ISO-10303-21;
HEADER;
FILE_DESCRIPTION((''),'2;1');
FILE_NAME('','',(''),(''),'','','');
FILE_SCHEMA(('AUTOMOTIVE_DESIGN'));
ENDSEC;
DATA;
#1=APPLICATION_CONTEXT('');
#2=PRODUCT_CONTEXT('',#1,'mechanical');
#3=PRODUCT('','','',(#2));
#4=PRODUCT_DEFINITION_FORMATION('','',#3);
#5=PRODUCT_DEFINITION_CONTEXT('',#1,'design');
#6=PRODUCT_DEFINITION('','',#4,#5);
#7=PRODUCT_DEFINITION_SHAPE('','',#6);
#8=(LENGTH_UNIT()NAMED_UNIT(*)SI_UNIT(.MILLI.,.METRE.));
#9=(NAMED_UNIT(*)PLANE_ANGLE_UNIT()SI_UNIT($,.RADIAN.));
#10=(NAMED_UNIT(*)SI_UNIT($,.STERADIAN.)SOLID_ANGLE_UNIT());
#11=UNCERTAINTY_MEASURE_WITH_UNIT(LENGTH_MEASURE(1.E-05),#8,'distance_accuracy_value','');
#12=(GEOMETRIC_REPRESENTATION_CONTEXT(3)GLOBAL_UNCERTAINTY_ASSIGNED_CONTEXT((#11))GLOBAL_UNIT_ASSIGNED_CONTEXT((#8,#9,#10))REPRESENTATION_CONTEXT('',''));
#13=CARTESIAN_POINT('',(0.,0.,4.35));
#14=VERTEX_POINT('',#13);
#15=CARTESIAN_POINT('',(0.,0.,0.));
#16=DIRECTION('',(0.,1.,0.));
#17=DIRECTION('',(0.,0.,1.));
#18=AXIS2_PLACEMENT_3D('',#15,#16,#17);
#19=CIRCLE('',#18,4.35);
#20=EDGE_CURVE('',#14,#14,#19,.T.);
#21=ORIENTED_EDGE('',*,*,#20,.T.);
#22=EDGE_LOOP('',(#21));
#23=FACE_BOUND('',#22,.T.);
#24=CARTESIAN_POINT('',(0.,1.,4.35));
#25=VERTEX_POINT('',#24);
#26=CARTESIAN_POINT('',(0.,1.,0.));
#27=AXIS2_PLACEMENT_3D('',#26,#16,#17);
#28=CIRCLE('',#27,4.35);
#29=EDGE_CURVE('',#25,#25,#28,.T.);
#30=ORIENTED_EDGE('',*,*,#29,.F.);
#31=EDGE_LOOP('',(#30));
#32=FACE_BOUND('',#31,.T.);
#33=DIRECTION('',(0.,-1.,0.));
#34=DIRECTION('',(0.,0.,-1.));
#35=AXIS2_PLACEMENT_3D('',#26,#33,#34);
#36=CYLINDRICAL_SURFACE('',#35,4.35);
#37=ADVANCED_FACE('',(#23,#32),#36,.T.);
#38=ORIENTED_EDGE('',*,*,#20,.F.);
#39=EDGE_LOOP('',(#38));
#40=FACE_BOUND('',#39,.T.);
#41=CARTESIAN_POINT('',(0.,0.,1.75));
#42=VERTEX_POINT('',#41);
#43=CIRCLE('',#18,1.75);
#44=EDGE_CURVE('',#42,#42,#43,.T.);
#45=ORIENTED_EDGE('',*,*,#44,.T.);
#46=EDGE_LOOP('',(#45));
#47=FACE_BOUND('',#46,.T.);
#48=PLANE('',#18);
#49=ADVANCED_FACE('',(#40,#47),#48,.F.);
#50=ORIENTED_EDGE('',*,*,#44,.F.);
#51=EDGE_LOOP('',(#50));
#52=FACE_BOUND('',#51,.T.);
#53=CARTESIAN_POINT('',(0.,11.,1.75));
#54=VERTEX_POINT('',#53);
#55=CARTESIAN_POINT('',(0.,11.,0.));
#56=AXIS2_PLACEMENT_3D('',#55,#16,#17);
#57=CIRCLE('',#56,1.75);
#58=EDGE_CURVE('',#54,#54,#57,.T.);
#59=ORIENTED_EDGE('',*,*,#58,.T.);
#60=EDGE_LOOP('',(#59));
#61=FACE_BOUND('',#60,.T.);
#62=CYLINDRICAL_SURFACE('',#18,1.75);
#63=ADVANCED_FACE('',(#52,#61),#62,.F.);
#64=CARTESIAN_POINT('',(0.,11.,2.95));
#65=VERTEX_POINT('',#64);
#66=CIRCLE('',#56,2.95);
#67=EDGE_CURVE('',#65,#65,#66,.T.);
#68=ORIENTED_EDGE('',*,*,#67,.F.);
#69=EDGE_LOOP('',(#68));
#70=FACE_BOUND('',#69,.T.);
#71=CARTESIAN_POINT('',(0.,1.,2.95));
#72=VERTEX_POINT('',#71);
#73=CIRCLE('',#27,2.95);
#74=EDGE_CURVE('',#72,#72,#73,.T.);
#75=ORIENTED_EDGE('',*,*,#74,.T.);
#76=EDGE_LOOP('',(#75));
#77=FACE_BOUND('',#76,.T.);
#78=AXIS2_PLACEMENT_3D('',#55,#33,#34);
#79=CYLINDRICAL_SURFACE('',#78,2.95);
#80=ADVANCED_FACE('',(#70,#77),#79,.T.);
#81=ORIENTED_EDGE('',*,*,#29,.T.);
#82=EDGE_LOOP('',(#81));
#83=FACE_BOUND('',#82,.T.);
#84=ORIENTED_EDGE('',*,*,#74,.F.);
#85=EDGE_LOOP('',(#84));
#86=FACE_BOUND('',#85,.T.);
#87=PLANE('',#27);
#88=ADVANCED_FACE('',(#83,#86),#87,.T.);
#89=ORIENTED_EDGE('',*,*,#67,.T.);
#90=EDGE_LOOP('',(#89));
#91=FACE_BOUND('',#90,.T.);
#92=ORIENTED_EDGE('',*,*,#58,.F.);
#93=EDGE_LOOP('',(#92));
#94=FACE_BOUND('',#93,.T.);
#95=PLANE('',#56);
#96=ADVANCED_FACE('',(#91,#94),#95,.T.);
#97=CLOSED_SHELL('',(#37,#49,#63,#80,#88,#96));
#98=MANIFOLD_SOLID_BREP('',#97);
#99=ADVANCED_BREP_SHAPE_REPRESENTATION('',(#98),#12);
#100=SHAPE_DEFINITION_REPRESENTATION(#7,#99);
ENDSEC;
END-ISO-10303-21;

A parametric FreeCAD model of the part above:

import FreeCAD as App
import Part
import Sketcher
Q = App.Units.Quantity

doc = App.newDocument("Part")
params = doc.addObject("Spreadsheet::Sheet", "Params")
for row, (alias, value) in enumerate([
    ("sketch1_diameter", "8.7 mm"),
    ("pad1_length", "1 mm"),
    ("sketch2_diameter", "5.9 mm"),
    ("pad2_length", "10 mm"),
    ("sketch3_diameter", "3.5 mm"),
], start=1):
    params.set(f"A{row}", alias)
    params.set(f"B{row}", "=" + value)
    params.setAlias(f"B{row}", alias)

body = doc.addObject("PartDesign::Body", "Body")

# Sketch on XZ plane
sketch1 = body.newObject("Sketcher::SketchObject", "Sketch")
sketch1.AttachmentSupport = (doc.getObject("XZ_Plane"), [""])
sketch1.MapMode = "FlatFace"
sketch1.addGeometry(Part.Circle(App.Vector(0, 0, 0), App.Vector(0, 0, 1), 4.3), False)
sketch1.addConstraint([
    Sketcher.Constraint("Coincident", 0, 3, -1, 1),
    Sketcher.Constraint("Diameter", 0, Q("8.7 mm")),
])
sketch1.setExpression("Constraints[1]", "Params.sketch1_diameter")
pad1 = body.newObject("PartDesign::Pad", "Pad")
pad1.Profile = sketch1
pad1.setExpression("Length", "Params.pad1_length")
pad1.Reversed = True

# Sketch on XZ plane
sketch2 = body.newObject("Sketcher::SketchObject", "Sketch001")
sketch2.AttachmentSupport = (doc.getObject("XZ_Plane"), [""])
sketch2.MapMode = "FlatFace"
sketch2.AttachmentOffset = App.Placement(App.Vector(0, 0, -1), App.Rotation())
sketch2.addGeometry(Part.Circle(App.Vector(0, 0, 0), App.Vector(0, 0, 1), 3), False)
sketch2.addConstraint([
    Sketcher.Constraint("Coincident", 0, 3, -1, 1),
    Sketcher.Constraint("Diameter", 0, Q("5.9 mm")),
])
sketch2.setExpression("Constraints[1]", "Params.sketch2_diameter")
pad2 = body.newObject("PartDesign::Pad", "Pad001")
pad2.Profile = sketch2
pad2.setExpression("Length", "Params.pad2_length")
pad2.Reversed = True

# Sketch on XZ plane
sketch3 = body.newObject("Sketcher::SketchObject", "Sketch002")
sketch3.AttachmentSupport = (doc.getObject("XZ_Plane"), [""])
sketch3.MapMode = "FlatFace"
sketch3.AttachmentOffset = App.Placement(App.Vector(0, 0, -11), App.Rotation())
sketch3.addGeometry(Part.Circle(App.Vector(0, 0, 0), App.Vector(0, 0, 1), 1.8), False)
sketch3.addConstraint([
    Sketcher.Constraint("Coincident", 0, 3, -1, 1),
    Sketcher.Constraint("Diameter", 0, Q("3.5 mm")),
])
sketch3.setExpression("Constraints[1]", "Params.sketch3_diameter")
pocket1 = body.newObject("PartDesign::Pocket", "Pocket")
pocket1.Profile = sketch3
pocket1.Type = "ThroughAll"
pocket1.Reversed = True

doc.recompute()
